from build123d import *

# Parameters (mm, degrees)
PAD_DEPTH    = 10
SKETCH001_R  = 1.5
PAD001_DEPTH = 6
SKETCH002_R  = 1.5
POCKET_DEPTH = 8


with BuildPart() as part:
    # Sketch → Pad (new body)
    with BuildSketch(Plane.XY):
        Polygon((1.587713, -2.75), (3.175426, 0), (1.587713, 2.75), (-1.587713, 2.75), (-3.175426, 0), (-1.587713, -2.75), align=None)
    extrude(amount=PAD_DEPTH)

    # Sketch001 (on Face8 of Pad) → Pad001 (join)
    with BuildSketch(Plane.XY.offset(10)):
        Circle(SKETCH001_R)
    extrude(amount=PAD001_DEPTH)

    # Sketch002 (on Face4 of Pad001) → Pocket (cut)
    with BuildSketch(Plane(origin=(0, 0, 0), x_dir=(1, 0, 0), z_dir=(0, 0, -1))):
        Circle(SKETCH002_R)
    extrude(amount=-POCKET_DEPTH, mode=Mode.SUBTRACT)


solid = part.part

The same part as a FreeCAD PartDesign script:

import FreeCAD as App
import Part
import Sketcher
Q = App.Units.Quantity


def add_polygon(sketch, points):
    """Adds a closed chain of lines whose ends are joined by coincident constraints."""
    first, n = sketch.GeometryCount, len(points)
    for a, b in zip(points, points[1:] + points[:1]):
        sketch.addGeometry(Part.LineSegment(App.Vector(*a, 0), App.Vector(*b, 0)), False)
    for i in range(n):
        sketch.addConstraint(Sketcher.Constraint("Coincident", first + i, 2, first + (i + 1) % n, 1))

doc = App.newDocument("Part")
params = doc.addObject("Spreadsheet::Sheet", "Params")
for row, (alias, value) in enumerate([
    ("pad1_length", "10 mm"),
    ("sketch2_diameter", "3 mm"),
    ("pad2_length", "6 mm"),
    ("sketch3_diameter", "3 mm"),
    ("pocket1_length", "8 mm"),
], start=1):
    params.set(f"A{row}", alias)
    params.set(f"B{row}", "=" + value)
    params.setAlias(f"B{row}", alias)

body = doc.addObject("PartDesign::Body", "Body")

sketch1 = body.newObject("Sketcher::SketchObject", "Sketch")
sketch1.AttachmentSupport = (doc.getObject("XY_Plane"), [""])
sketch1.MapMode = "FlatFace"
add_polygon(sketch1, [(1.6, -2.8), (3.2, 0), (1.6, 2.8), (-1.6, 2.8), (-3.2, 0), (-1.6, -2.8)])
sketch1.addConstraint([
    Sketcher.Constraint("Horizontal", 2),
    Sketcher.Constraint("Horizontal", 5),
    Sketcher.Constraint("Symmetric", 0, 2, 3, 2, -1, 1),
    Sketcher.Constraint("Symmetric", 1, 2, 4, 2, -1, 1),
    Sketcher.Constraint("PointOnObject", 0, 2, -1),
    Sketcher.Constraint("Parallel", 0, 3),
    Sketcher.Constraint("Vertical", 2, 2, 4, 2),
    Sketcher.Constraint("Angle", 0, Q("60.000004 deg")),
    Sketcher.Constraint("DistanceY", 4, 2, 2, 2, 5.5),
    Sketcher.Constraint("DistanceX", 2, 2, 2, 1, 3.175426),
])
pad1 = body.newObject("PartDesign::Pad", "Pad")
pad1.Profile = sketch1
pad1.setExpression("Length", "Params.pad1_length")

sketch2 = body.newObject("Sketcher::SketchObject", "Sketch001")
sketch2.AttachmentSupport = (doc.getObject("XY_Plane"), [""])
sketch2.MapMode = "FlatFace"
sketch2.AttachmentOffset = App.Placement(App.Vector(0, 0, 10), App.Rotation())
sketch2.addGeometry(Part.Circle(App.Vector(0, 0, 0), App.Vector(0, 0, 1), 1.5), False)
sketch2.addConstraint([
    Sketcher.Constraint("Coincident", 0, 3, -1, 1),
    Sketcher.Constraint("Diameter", 0, 3.0),
])
sketch2.setExpression("Constraints[1]", "Params.sketch2_diameter")
pad2 = body.newObject("PartDesign::Pad", "Pad001")
pad2.Profile = sketch2
pad2.setExpression("Length", "Params.pad2_length")

sketch3 = body.newObject("Sketcher::SketchObject", "Sketch002")
sketch3.AttachmentSupport = (doc.getObject("XY_Plane"), [""])
sketch3.MapMode = "FlatFace"
sketch3.addGeometry(Part.Circle(App.Vector(0, 0, 0), App.Vector(0, 0, 1), 1.5), False)
sketch3.addConstraint([
    Sketcher.Constraint("Coincident", 0, 3, -1, 1),
    Sketcher.Constraint("Diameter", 0, 3.0),
])
sketch3.setExpression("Constraints[1]", "Params.sketch3_diameter")
pocket1 = body.newObject("PartDesign::Pocket", "Pocket")
pocket1.Profile = sketch3
pocket1.setExpression("Length", "Params.pocket1_length")
pocket1.Reversed = True

doc.recompute()
